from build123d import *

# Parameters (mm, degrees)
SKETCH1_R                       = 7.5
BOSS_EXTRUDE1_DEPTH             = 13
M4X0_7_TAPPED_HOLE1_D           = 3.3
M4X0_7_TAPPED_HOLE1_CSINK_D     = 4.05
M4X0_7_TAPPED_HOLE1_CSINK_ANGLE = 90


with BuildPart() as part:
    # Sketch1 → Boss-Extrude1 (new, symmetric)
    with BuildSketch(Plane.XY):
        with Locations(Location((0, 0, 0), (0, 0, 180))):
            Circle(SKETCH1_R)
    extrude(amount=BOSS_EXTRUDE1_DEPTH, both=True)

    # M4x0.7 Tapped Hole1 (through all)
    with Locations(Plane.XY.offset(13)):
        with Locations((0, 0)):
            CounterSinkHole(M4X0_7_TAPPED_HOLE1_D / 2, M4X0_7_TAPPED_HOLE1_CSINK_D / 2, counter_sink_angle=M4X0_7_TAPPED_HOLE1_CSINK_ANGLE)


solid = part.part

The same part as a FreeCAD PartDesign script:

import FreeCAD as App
import Part
import Sketcher
from FreeCAD import Vector

doc = App.newDocument("Part")
body = doc.addObject("PartDesign::Body", "Body")

sketch1 = body.newObject("Sketcher::SketchObject", "Sketch")
sketch1.AttachmentSupport = (doc.getObject("XY_Plane"), [""])
sketch1.MapMode = "FlatFace"
sketch1.addGeometry(Part.Circle(Vector(0, 0, 0), Vector(0, 0, 1), 7.5), False)
sketch1.addConstraint([
    Sketcher.Constraint("Coincident", 0, 3, -1, 1),
    Sketcher.Constraint("Diameter", 0, 15.0),
])
pad1 = body.newObject("PartDesign::Pad", "Pad")
pad1.Profile = sketch1
pad1.Length = 26
pad1.Midplane = True

sketch2 = body.newObject("Sketcher::SketchObject", "Sketch001")
sketch2.AttachmentSupport = (doc.getObject("XY_Plane"), [""])
sketch2.MapMode = "FlatFace"
sketch2.AttachmentOffset = App.Placement(Vector(0, 0, 13), App.Rotation())
sketch2.addGeometry(Part.Circle(Vector(0, 0, 0), Vector(0, 0, 1), 1.65), False)
sketch2.addConstraint([
    Sketcher.Constraint("Coincident", 0, 3, -1, 1),
    Sketcher.Constraint("Diameter", 0, 3.3),
])
doc.recompute()
hole = body.newObject("PartDesign::Hole", "Hole")
hole.Profile = sketch2
hole.ThreadType = "None"
hole.Diameter = 3.3
hole.DepthType = "ThroughAll"
hole.HoleCutType = "Countersink"
hole.HoleCutDiameter = 4.05
hole.HoleCutCountersinkAngle = 90

doc.recompute()
